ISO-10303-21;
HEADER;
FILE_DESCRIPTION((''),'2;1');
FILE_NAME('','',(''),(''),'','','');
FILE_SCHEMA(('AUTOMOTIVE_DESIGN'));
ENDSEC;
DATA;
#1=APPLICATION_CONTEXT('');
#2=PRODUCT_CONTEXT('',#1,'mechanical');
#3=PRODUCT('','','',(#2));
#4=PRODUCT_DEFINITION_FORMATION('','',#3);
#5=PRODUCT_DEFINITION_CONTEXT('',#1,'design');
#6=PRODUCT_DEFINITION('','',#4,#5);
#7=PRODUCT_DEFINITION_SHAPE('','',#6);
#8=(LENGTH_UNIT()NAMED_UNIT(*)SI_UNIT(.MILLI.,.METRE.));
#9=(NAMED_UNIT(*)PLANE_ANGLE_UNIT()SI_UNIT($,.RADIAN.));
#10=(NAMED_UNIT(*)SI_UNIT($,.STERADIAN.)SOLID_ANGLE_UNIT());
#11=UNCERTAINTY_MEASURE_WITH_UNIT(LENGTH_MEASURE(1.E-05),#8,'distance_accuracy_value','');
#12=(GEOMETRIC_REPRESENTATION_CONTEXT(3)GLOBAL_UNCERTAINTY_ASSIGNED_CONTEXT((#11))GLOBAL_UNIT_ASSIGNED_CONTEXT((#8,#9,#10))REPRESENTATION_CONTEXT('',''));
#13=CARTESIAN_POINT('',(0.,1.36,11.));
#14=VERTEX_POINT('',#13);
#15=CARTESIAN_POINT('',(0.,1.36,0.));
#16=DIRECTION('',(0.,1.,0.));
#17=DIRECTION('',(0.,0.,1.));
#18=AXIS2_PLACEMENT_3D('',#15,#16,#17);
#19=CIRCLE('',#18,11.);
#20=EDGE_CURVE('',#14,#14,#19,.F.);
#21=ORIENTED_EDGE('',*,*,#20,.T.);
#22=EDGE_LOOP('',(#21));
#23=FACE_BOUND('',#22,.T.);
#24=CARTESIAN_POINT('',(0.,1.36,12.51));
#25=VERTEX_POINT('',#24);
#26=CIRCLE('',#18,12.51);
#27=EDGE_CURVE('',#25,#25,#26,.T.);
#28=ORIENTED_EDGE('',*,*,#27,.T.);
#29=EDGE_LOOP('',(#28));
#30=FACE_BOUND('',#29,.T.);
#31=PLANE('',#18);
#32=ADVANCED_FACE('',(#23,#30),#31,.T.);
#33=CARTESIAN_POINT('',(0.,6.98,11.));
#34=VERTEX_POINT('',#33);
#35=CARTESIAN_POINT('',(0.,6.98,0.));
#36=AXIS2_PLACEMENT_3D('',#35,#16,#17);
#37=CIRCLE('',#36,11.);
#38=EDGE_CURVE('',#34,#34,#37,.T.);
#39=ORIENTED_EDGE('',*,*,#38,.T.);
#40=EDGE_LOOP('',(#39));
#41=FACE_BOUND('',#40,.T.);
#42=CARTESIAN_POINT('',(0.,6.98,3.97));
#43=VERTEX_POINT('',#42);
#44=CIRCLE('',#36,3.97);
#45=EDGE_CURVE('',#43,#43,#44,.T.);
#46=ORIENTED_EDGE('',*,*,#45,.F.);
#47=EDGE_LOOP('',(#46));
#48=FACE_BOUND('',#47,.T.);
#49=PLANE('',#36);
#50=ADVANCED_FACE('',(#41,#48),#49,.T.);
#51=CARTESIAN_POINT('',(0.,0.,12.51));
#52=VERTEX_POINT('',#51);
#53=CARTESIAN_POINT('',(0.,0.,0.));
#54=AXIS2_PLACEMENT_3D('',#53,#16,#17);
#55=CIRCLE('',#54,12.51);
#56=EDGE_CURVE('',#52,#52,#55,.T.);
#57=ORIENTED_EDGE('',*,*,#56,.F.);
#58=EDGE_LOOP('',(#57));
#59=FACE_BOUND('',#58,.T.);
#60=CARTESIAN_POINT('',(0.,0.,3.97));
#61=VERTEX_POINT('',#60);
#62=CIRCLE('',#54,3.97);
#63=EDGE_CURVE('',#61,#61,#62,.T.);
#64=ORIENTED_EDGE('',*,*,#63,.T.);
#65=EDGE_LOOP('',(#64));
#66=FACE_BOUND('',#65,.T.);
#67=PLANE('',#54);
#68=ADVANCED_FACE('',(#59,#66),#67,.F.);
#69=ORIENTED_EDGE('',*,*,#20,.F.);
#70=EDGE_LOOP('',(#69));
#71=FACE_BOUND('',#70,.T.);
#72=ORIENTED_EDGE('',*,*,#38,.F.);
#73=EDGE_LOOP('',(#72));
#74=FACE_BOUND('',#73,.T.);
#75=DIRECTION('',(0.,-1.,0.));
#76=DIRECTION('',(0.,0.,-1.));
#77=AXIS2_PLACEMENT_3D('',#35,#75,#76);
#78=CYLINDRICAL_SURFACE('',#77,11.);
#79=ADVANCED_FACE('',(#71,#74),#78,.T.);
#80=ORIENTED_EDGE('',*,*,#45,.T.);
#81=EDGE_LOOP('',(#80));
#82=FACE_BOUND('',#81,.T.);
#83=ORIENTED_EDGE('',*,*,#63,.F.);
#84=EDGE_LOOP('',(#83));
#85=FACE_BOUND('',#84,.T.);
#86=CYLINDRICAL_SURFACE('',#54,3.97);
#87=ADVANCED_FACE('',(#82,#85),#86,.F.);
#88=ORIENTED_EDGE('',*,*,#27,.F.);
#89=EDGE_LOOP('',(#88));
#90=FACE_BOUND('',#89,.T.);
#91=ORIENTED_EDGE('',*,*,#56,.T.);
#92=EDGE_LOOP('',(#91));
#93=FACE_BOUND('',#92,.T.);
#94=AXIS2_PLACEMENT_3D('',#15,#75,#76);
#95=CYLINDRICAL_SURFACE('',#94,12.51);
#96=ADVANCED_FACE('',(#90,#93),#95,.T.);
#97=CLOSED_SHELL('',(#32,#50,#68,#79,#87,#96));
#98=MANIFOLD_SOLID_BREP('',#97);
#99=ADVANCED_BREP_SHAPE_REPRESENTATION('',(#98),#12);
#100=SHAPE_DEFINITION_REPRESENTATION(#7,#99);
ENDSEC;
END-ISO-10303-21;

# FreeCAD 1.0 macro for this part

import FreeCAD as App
import Part
import Sketcher

V = App.Vector
Q = App.Units.Quantity

doc = App.newDocument("Part")
params = doc.addObject("Spreadsheet::Sheet", "Params")
for row, (alias, value) in enumerate([
    ("sketch1_diameter", "25.02 mm"),
    ("pad1_length", "1.36 mm"),
    ("sketch2_diameter", "22 mm"),
    ("pad2_length", "6.98 mm"),
    ("sketch3_diameter", "7.94 mm"),
], start=1):
    params.set(f"A{row}", alias)
    params.set(f"B{row}", "=" + value)
    params.setAlias(f"B{row}", alias)

body = doc.addObject("PartDesign::Body", "Body")

# Sketch on XZ plane
sketch1 = body.newObject("Sketcher::SketchObject", "Sketch")
sketch1.AttachmentSupport = (doc.getObject("XZ_Plane"), [""])
sketch1.MapMode = "FlatFace"
sketch1.addGeometry(Part.Circle(V(0, 0, 0), V(0, 0, 1), 12.51), False)
sketch1.addConstraint([
    Sketcher.Constraint("Coincident", 0, 3, -1, 1),
    Sketcher.Constraint("Diameter", 0, Q("25.02 mm")),
])
sketch1.setExpression("Constraints[1]", "Params.sketch1_diameter")
pad1 = body.newObject("PartDesign::Pad", "Pad")
pad1.Profile = sketch1
pad1.setExpression("Length", "Params.pad1_length")
pad1.Reversed = True

# Sketch on XZ plane
sketch2 = body.newObject("Sketcher::SketchObject", "Sketch001")
sketch2.AttachmentSupport = (doc.getObject("XZ_Plane"), [""])
sketch2.MapMode = "FlatFace"
sketch2.addGeometry(Part.Circle(V(0, 0, 0), V(0, 0, 1), 11), False)
sketch2.addConstraint([
    Sketcher.Constraint("Coincident", 0, 3, -1, 1),
    Sketcher.Constraint("Diameter", 0, Q("22 mm")),
])
sketch2.setExpression("Constraints[1]", "Params.sketch2_diameter")
pad2 = body.newObject("PartDesign::Pad", "Pad001")
pad2.Profile = sketch2
pad2.setExpression("Length", "Params.pad2_length")
pad2.Reversed = True

# Sketch on XZ plane
sketch3 = body.newObject("Sketcher::SketchObject", "Sketch002")
sketch3.AttachmentSupport = (doc.getObject("XZ_Plane"), [""])
sketch3.MapMode = "FlatFace"
sketch3.AttachmentOffset = App.Placement(V(0, 0, -6.98), App.Rotation())
sketch3.addGeometry(Part.Circle(V(0, 0, 0), V(0, 0, 1), 3.97), False)
sketch3.addConstraint([
    Sketcher.Constraint("Coincident", 0, 3, -1, 1),
    Sketcher.Constraint("Diameter", 0, Q("7.94 mm")),
])
sketch3.setExpression("Constraints[1]", "Params.sketch3_diameter")
pocket1 = body.newObject("PartDesign::Pocket", "Pocket")
pocket1.Profile = sketch3
pocket1.Type = "ThroughAll"
pocket1.Reversed = True

doc.recompute()
